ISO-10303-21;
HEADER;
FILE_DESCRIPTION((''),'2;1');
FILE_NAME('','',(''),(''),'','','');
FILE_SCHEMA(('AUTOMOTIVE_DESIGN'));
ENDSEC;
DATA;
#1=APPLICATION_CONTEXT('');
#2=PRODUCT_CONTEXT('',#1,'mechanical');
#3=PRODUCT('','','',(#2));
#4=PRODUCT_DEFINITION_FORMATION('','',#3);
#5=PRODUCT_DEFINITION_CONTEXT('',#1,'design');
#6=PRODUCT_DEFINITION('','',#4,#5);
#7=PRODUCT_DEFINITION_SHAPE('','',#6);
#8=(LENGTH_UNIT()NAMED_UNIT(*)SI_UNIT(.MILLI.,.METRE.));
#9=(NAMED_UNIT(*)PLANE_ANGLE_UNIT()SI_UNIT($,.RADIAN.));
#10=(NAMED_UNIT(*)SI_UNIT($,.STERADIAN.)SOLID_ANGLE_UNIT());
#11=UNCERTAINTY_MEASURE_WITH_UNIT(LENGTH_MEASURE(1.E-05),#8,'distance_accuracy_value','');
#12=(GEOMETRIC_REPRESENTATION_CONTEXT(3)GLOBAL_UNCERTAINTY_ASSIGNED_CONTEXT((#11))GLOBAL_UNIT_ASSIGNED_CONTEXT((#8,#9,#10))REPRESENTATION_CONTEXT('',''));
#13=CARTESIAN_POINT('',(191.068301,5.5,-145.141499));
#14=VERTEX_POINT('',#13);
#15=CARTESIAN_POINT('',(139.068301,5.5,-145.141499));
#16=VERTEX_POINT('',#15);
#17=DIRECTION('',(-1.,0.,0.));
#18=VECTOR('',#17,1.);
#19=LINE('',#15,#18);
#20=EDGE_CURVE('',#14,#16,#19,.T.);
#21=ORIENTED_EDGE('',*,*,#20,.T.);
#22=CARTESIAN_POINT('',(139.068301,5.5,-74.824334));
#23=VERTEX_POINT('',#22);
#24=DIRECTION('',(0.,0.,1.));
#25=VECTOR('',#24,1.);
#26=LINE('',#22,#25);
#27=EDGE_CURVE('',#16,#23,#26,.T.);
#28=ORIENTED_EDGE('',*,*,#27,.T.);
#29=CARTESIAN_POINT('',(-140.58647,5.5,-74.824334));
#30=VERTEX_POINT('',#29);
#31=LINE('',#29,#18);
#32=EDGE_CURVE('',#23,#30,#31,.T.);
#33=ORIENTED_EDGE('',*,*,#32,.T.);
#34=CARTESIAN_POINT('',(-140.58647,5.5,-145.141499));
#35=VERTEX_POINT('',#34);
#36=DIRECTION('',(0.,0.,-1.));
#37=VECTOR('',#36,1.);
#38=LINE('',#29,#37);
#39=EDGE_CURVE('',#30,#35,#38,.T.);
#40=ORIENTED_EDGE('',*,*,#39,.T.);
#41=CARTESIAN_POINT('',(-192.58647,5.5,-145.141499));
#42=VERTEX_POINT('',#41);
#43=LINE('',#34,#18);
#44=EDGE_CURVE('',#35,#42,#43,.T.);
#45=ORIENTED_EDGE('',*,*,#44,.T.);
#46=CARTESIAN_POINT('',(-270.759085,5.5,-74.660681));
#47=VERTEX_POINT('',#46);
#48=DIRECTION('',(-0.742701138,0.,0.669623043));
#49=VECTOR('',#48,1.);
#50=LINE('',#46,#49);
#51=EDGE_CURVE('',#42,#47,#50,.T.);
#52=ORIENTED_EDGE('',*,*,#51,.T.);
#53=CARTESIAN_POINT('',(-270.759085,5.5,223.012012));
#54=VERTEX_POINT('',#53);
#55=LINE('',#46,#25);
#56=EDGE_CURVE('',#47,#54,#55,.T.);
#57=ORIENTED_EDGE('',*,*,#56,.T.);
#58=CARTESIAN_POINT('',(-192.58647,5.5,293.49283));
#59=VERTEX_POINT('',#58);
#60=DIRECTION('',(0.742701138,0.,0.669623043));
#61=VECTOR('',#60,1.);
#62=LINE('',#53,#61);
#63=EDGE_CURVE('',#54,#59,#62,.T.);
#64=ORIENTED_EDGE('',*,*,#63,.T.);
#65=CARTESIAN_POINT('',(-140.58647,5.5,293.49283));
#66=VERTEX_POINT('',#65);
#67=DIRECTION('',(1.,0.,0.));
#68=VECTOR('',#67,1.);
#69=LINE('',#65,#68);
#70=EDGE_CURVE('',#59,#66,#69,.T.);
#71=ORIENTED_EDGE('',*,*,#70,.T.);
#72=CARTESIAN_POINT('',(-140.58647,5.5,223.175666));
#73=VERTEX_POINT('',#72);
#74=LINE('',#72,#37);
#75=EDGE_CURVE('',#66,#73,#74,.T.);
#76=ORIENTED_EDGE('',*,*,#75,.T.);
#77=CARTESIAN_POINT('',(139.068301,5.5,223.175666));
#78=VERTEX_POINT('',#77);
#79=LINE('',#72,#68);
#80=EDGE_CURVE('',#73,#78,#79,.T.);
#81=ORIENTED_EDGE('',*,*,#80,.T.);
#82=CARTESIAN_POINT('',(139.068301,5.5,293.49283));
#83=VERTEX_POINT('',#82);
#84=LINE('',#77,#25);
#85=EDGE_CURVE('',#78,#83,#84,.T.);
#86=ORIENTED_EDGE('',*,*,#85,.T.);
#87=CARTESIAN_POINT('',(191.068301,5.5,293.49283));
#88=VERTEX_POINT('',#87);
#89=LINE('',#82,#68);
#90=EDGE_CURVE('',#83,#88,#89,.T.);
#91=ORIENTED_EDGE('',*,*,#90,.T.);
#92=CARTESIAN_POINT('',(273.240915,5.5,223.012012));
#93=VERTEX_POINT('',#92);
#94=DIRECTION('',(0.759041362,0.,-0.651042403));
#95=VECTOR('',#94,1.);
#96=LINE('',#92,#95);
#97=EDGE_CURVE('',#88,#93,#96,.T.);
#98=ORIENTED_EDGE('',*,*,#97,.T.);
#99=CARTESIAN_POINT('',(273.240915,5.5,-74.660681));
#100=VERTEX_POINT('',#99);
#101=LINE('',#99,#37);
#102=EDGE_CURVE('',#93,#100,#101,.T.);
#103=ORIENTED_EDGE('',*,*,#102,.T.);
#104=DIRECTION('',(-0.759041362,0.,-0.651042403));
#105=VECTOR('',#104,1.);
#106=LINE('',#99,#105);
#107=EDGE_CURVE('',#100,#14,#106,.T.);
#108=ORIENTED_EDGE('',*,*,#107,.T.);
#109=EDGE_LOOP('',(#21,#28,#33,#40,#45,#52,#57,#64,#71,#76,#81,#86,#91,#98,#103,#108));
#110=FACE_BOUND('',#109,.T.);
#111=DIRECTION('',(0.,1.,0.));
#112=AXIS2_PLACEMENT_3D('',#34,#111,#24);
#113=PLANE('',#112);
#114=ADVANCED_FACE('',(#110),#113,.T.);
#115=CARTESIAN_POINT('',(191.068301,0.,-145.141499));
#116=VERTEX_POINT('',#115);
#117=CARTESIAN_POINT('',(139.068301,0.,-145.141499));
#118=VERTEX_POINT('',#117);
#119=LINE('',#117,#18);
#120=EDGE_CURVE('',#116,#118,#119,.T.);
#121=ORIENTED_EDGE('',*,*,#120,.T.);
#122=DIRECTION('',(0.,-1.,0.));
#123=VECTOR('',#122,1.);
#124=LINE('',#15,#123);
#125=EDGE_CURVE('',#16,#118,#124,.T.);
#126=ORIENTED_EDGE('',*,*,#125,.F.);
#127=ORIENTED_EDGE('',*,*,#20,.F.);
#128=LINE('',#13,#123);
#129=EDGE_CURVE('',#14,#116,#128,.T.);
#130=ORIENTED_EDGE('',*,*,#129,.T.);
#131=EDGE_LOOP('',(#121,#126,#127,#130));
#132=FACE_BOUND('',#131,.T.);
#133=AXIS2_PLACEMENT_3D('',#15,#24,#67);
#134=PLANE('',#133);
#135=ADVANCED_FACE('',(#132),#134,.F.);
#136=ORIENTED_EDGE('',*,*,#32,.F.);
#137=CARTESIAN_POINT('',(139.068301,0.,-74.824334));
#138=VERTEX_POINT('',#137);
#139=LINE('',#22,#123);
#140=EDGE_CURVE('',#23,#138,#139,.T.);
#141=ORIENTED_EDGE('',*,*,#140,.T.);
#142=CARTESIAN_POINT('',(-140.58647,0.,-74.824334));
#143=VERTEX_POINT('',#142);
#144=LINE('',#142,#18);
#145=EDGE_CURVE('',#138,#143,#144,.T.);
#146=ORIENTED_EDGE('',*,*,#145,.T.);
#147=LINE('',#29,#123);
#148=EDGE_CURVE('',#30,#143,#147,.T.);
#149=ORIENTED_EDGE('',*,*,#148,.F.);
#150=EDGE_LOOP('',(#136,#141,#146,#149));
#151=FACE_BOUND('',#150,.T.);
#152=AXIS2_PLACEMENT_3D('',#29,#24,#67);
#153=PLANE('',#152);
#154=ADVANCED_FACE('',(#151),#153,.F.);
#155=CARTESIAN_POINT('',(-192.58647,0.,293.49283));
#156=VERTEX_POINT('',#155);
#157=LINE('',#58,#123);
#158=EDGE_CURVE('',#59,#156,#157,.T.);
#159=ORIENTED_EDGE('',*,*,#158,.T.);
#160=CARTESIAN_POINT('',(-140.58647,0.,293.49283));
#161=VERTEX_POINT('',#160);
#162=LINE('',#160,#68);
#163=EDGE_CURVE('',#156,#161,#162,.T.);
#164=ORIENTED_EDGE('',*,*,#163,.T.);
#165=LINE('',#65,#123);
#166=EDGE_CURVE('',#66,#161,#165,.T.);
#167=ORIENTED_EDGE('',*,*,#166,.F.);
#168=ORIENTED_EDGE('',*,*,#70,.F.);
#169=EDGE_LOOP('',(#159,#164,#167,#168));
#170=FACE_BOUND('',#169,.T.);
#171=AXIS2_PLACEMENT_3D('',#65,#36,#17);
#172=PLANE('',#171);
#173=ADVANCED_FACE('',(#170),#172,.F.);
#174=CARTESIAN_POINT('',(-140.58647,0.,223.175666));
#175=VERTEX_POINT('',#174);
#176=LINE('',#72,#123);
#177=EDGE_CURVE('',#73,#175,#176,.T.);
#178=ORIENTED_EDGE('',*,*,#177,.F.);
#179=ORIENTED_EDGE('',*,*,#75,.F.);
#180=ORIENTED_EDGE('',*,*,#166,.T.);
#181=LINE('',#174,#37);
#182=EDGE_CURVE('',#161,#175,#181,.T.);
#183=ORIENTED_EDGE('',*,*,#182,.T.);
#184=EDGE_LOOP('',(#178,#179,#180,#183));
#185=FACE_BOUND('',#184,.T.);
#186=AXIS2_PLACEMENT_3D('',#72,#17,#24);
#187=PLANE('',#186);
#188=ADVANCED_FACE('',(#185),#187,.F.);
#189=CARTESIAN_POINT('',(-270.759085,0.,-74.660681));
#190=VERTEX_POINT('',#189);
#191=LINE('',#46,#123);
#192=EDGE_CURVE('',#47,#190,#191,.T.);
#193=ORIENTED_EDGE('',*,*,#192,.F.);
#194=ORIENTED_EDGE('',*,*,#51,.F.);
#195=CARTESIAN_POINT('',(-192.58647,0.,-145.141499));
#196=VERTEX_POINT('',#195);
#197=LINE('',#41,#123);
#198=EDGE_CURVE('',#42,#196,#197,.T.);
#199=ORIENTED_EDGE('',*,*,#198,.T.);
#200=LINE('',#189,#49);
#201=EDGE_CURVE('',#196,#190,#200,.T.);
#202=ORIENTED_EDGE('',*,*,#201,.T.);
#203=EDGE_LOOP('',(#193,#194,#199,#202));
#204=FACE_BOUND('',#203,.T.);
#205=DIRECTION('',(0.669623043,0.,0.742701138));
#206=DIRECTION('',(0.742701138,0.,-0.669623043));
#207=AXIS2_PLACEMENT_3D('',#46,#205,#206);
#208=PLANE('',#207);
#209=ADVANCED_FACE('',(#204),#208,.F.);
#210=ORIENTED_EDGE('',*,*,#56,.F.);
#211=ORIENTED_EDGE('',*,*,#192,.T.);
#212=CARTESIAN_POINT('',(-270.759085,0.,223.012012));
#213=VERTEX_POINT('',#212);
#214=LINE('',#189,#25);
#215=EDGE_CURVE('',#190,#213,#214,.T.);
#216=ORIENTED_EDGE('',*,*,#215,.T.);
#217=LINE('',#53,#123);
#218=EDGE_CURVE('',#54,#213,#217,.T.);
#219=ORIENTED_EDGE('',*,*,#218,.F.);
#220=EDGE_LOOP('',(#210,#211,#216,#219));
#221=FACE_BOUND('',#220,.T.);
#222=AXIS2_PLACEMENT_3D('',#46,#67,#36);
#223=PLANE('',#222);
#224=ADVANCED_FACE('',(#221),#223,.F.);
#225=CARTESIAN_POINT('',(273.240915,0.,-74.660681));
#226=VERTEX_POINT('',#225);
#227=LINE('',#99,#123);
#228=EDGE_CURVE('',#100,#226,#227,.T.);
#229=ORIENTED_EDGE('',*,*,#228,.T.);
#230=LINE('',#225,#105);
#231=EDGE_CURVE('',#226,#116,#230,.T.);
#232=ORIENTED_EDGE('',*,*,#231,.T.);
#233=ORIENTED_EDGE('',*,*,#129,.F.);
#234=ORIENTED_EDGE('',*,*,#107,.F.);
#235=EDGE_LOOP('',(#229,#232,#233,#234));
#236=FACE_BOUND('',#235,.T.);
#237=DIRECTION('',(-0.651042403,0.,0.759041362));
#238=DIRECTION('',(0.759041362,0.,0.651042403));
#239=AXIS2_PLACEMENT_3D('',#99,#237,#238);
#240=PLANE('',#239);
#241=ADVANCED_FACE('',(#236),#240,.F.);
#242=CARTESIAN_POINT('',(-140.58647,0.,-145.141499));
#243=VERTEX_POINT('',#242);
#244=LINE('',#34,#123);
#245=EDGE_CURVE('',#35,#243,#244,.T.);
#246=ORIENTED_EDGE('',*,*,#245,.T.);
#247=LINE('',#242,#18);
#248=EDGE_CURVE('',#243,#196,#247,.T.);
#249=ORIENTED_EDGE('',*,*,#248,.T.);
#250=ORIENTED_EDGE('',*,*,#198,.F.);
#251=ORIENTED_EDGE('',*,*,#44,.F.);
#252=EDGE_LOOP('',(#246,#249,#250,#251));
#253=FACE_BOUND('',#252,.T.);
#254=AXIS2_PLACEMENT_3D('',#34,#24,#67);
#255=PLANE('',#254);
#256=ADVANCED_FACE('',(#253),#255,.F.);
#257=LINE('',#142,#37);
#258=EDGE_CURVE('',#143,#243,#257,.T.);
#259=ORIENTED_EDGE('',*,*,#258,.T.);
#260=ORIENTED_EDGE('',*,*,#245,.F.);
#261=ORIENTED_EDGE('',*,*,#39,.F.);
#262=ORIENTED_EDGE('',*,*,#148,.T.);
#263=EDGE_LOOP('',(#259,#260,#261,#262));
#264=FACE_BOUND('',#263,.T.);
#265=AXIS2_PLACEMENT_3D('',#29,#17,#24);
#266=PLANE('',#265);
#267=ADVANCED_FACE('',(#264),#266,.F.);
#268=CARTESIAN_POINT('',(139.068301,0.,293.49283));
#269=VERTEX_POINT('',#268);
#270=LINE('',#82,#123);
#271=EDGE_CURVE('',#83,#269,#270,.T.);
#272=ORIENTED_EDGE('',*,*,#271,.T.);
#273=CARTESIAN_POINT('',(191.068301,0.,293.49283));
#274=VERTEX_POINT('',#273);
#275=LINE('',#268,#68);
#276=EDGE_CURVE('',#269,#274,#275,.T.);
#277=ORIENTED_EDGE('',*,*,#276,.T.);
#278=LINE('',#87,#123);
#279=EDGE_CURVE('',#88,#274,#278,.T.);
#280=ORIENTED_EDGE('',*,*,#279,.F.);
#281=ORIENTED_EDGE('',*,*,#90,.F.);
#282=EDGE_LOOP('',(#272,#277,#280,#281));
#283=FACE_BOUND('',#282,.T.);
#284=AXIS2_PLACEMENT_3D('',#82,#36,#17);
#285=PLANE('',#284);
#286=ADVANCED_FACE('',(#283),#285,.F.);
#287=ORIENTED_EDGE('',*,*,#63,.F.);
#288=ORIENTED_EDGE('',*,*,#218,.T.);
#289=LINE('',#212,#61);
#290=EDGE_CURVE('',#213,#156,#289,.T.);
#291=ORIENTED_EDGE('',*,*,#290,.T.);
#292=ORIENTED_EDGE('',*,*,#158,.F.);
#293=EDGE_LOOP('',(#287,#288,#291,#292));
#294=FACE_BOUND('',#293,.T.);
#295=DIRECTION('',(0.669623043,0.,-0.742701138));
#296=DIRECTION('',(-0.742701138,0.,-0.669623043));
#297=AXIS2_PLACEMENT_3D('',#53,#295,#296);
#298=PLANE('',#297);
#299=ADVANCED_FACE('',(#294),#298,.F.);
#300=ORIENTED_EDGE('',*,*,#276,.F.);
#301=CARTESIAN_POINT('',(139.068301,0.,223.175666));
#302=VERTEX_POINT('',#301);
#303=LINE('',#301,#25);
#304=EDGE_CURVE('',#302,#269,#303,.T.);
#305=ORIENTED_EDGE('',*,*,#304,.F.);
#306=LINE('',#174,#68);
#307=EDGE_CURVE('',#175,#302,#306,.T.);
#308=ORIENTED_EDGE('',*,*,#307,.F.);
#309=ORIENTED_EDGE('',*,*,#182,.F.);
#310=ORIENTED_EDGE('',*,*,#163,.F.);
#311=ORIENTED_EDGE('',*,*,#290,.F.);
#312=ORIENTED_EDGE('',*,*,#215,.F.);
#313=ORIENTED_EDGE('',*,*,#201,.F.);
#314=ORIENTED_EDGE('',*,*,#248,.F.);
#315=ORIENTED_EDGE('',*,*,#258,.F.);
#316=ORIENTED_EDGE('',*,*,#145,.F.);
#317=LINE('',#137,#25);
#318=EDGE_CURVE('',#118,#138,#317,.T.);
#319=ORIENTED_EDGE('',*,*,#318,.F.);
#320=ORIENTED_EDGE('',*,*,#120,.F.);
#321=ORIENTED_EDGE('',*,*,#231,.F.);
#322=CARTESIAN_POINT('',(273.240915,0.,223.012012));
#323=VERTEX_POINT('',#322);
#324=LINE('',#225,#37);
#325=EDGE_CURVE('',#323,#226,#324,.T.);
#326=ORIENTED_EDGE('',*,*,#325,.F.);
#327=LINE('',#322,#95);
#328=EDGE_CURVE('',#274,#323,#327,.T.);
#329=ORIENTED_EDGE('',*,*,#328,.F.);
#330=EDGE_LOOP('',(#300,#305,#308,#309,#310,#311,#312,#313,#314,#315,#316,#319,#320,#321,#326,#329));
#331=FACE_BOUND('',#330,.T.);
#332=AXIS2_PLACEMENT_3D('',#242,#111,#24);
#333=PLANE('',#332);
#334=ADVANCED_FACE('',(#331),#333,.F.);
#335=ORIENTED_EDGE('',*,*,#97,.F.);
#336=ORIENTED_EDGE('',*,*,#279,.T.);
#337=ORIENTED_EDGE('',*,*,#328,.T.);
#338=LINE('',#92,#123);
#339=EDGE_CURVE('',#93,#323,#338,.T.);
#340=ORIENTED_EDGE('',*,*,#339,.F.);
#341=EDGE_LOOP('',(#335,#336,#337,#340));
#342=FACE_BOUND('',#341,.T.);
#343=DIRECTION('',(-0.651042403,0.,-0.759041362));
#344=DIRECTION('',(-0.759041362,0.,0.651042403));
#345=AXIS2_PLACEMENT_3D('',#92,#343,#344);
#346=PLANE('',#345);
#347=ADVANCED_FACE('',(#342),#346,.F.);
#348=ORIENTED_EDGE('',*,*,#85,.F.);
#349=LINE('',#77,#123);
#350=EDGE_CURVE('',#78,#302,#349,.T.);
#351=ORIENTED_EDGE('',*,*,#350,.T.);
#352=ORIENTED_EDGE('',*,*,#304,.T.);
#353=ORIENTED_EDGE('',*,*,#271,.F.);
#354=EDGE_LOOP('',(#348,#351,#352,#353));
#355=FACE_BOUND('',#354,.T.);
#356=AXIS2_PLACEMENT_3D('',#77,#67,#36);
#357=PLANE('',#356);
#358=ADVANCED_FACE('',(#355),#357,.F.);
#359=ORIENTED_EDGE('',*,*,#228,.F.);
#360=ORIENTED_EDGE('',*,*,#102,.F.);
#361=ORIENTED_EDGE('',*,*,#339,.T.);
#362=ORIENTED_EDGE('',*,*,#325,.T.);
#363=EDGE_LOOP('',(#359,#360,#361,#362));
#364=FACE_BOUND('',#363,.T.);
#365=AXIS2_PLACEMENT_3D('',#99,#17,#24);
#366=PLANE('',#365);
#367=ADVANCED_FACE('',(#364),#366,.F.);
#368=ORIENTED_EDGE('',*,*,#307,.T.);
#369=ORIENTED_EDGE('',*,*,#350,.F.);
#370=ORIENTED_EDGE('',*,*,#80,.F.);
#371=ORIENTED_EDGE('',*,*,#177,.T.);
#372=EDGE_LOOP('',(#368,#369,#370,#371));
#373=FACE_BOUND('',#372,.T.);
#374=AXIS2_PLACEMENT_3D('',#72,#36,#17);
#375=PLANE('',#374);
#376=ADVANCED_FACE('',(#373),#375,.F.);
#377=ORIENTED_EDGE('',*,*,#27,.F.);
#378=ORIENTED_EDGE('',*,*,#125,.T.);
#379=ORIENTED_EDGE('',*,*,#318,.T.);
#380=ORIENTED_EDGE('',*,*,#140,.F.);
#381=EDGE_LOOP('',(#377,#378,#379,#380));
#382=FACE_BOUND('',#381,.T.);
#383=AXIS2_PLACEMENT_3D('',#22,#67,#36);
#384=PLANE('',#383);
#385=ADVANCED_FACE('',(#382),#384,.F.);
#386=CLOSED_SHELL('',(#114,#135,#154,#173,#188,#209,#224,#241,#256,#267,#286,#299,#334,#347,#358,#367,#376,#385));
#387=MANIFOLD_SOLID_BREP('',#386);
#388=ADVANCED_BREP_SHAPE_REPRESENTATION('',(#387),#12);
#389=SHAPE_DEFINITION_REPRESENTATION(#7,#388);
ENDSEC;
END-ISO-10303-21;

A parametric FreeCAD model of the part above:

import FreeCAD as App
import Part
import Sketcher
from FreeCAD import Vector
Q = App.Units.Quantity

doc = App.newDocument("Part")
body = doc.addObject("PartDesign::Body", "Body")

# Sketch on XZ plane
sketch1 = body.newObject("Sketcher::SketchObject", "Sketch")
sketch1.AttachmentSupport = (doc.getObject("XZ_Plane"), [""])
sketch1.MapMode = "FlatFace"
sketch1.addGeometry([
    Part.LineSegment(Vector(-271, -75, 0), Vector(-271, 223, 0)),  # 0
    Part.LineSegment(Vector(-271, 223, 0), Vector(-193, 293, 0)),  # 1
    Part.LineSegment(Vector(-193, 293, 0), Vector(-141, 293, 0)),  # 2
    Part.LineSegment(Vector(-141, 293, 0), Vector(-141, 223, 0)),  # 3
    Part.LineSegment(Vector(-141, 223, 0), Vector(139, 223, 0)),  # 4
    Part.LineSegment(Vector(139, 223, 0), Vector(139, 293, 0)),  # 5
    Part.LineSegment(Vector(139, 293, 0), Vector(191, 293, 0)),  # 6
    Part.LineSegment(Vector(191, 293, 0), Vector(273, 223, 0)),  # 7
    Part.LineSegment(Vector(273, 223, 0), Vector(273, -75, 0)),  # 8
    Part.LineSegment(Vector(273, -75, 0), Vector(191, -145, 0)),  # 9
    Part.LineSegment(Vector(191, -145, 0), Vector(139, -145, 0)),  # 10
    Part.LineSegment(Vector(139, -145, 0), Vector(139, -75, 0)),  # 11
    Part.LineSegment(Vector(139, -75, 0), Vector(-141, -75, 0)),  # 12
    Part.LineSegment(Vector(-141, -75, 0), Vector(-141, -145, 0)),  # 13
    Part.LineSegment(Vector(-141, -145, 0), Vector(-193, -145, 0)),  # 14
    Part.LineSegment(Vector(-193, -145, 0), Vector(-271, -75, 0)),  # 15
], False)
sketch1.addConstraint([
    Sketcher.Constraint("Coincident", 0, 2, 1, 1),
    Sketcher.Constraint("Coincident", 1, 2, 2, 1),
    Sketcher.Constraint("Coincident", 2, 2, 3, 1),
    Sketcher.Constraint("Coincident", 3, 2, 4, 1),
    Sketcher.Constraint("Coincident", 4, 2, 5, 1),
    Sketcher.Constraint("Coincident", 5, 2, 6, 1),
    Sketcher.Constraint("Coincident", 6, 2, 7, 1),
    Sketcher.Constraint("Coincident", 7, 2, 8, 1),
    Sketcher.Constraint("Coincident", 8, 2, 9, 1),
    Sketcher.Constraint("Coincident", 9, 2, 10, 1),
    Sketcher.Constraint("Coincident", 10, 2, 11, 1),
    Sketcher.Constraint("Coincident", 11, 2, 12, 1),
    Sketcher.Constraint("Coincident", 12, 2, 13, 1),
    Sketcher.Constraint("Coincident", 13, 2, 14, 1),
    Sketcher.Constraint("Coincident", 14, 2, 15, 1),
    Sketcher.Constraint("Coincident", 15, 2, 0, 1),
    Sketcher.Constraint("Vertical", 0),
    Sketcher.Constraint("Horizontal", 2),
    Sketcher.Constraint("Vertical", 3),
    Sketcher.Constraint("Horizontal", 4),
    Sketcher.Constraint("Vertical", 5),
    Sketcher.Constraint("Horizontal", 6),
    Sketcher.Constraint("Vertical", 8),
    Sketcher.Constraint("Horizontal", 10),
    Sketcher.Constraint("Vertical", 11),
    Sketcher.Constraint("Horizontal", 12),
    Sketcher.Constraint("Vertical", 13),
    Sketcher.Constraint("Horizontal", 14),
    Sketcher.Constraint("Horizontal", 2, 2, 5, 2),
    Sketcher.Constraint("Horizontal", 0, 2, 7, 2),
    Sketcher.Constraint("Horizontal", 10, 2, 13, 2),
    Sketcher.Constraint("Horizontal", 8, 2, 15, 2),
    Sketcher.Constraint("Vertical", 6, 2, 9, 2),
    Sketcher.Constraint("Vertical", 5, 2, 10, 2),
    Sketcher.Constraint("Vertical", 3, 2, 12, 2),
    Sketcher.Constraint("Vertical", 1, 2, 14, 2),
    Sketcher.Constraint("Equal", 2, 6),
    Sketcher.Constraint("Equal", 5, 11),
    Sketcher.Constraint("Equal", 7, 9),
    Sketcher.Constraint("DistanceX", 2, 1, 2, 2, Q("52 mm")),
    Sketcher.Constraint("DistanceY", 11, 2, 4, 2, Q("298 mm")),
    Sketcher.Constraint("DistanceX", 4, 1, 4, 2, Q("279.654771 mm")),
    Sketcher.Constraint("DistanceX", -1, 1, 4, 2, Q("139.068301 mm")),
    Sketcher.Constraint("DistanceY", 9, 2, -1, 1, Q("145.141499 mm")),
    Sketcher.Constraint("Distance", 1, Q("105.25447 mm")),
    Sketcher.Constraint("DistanceY", 0, 1, 0, 2, Q("297.672693 mm")),
    Sketcher.Constraint("DistanceY", 3, 2, 3, 1, Q("70.317165 mm")),
    Sketcher.Constraint("Distance", 7, Q("108.258415 mm")),
])
pad1 = body.newObject("PartDesign::Pad", "Pad")
pad1.Profile = sketch1
pad1.Length = 5.5
pad1.Reversed = True

doc.recompute()
